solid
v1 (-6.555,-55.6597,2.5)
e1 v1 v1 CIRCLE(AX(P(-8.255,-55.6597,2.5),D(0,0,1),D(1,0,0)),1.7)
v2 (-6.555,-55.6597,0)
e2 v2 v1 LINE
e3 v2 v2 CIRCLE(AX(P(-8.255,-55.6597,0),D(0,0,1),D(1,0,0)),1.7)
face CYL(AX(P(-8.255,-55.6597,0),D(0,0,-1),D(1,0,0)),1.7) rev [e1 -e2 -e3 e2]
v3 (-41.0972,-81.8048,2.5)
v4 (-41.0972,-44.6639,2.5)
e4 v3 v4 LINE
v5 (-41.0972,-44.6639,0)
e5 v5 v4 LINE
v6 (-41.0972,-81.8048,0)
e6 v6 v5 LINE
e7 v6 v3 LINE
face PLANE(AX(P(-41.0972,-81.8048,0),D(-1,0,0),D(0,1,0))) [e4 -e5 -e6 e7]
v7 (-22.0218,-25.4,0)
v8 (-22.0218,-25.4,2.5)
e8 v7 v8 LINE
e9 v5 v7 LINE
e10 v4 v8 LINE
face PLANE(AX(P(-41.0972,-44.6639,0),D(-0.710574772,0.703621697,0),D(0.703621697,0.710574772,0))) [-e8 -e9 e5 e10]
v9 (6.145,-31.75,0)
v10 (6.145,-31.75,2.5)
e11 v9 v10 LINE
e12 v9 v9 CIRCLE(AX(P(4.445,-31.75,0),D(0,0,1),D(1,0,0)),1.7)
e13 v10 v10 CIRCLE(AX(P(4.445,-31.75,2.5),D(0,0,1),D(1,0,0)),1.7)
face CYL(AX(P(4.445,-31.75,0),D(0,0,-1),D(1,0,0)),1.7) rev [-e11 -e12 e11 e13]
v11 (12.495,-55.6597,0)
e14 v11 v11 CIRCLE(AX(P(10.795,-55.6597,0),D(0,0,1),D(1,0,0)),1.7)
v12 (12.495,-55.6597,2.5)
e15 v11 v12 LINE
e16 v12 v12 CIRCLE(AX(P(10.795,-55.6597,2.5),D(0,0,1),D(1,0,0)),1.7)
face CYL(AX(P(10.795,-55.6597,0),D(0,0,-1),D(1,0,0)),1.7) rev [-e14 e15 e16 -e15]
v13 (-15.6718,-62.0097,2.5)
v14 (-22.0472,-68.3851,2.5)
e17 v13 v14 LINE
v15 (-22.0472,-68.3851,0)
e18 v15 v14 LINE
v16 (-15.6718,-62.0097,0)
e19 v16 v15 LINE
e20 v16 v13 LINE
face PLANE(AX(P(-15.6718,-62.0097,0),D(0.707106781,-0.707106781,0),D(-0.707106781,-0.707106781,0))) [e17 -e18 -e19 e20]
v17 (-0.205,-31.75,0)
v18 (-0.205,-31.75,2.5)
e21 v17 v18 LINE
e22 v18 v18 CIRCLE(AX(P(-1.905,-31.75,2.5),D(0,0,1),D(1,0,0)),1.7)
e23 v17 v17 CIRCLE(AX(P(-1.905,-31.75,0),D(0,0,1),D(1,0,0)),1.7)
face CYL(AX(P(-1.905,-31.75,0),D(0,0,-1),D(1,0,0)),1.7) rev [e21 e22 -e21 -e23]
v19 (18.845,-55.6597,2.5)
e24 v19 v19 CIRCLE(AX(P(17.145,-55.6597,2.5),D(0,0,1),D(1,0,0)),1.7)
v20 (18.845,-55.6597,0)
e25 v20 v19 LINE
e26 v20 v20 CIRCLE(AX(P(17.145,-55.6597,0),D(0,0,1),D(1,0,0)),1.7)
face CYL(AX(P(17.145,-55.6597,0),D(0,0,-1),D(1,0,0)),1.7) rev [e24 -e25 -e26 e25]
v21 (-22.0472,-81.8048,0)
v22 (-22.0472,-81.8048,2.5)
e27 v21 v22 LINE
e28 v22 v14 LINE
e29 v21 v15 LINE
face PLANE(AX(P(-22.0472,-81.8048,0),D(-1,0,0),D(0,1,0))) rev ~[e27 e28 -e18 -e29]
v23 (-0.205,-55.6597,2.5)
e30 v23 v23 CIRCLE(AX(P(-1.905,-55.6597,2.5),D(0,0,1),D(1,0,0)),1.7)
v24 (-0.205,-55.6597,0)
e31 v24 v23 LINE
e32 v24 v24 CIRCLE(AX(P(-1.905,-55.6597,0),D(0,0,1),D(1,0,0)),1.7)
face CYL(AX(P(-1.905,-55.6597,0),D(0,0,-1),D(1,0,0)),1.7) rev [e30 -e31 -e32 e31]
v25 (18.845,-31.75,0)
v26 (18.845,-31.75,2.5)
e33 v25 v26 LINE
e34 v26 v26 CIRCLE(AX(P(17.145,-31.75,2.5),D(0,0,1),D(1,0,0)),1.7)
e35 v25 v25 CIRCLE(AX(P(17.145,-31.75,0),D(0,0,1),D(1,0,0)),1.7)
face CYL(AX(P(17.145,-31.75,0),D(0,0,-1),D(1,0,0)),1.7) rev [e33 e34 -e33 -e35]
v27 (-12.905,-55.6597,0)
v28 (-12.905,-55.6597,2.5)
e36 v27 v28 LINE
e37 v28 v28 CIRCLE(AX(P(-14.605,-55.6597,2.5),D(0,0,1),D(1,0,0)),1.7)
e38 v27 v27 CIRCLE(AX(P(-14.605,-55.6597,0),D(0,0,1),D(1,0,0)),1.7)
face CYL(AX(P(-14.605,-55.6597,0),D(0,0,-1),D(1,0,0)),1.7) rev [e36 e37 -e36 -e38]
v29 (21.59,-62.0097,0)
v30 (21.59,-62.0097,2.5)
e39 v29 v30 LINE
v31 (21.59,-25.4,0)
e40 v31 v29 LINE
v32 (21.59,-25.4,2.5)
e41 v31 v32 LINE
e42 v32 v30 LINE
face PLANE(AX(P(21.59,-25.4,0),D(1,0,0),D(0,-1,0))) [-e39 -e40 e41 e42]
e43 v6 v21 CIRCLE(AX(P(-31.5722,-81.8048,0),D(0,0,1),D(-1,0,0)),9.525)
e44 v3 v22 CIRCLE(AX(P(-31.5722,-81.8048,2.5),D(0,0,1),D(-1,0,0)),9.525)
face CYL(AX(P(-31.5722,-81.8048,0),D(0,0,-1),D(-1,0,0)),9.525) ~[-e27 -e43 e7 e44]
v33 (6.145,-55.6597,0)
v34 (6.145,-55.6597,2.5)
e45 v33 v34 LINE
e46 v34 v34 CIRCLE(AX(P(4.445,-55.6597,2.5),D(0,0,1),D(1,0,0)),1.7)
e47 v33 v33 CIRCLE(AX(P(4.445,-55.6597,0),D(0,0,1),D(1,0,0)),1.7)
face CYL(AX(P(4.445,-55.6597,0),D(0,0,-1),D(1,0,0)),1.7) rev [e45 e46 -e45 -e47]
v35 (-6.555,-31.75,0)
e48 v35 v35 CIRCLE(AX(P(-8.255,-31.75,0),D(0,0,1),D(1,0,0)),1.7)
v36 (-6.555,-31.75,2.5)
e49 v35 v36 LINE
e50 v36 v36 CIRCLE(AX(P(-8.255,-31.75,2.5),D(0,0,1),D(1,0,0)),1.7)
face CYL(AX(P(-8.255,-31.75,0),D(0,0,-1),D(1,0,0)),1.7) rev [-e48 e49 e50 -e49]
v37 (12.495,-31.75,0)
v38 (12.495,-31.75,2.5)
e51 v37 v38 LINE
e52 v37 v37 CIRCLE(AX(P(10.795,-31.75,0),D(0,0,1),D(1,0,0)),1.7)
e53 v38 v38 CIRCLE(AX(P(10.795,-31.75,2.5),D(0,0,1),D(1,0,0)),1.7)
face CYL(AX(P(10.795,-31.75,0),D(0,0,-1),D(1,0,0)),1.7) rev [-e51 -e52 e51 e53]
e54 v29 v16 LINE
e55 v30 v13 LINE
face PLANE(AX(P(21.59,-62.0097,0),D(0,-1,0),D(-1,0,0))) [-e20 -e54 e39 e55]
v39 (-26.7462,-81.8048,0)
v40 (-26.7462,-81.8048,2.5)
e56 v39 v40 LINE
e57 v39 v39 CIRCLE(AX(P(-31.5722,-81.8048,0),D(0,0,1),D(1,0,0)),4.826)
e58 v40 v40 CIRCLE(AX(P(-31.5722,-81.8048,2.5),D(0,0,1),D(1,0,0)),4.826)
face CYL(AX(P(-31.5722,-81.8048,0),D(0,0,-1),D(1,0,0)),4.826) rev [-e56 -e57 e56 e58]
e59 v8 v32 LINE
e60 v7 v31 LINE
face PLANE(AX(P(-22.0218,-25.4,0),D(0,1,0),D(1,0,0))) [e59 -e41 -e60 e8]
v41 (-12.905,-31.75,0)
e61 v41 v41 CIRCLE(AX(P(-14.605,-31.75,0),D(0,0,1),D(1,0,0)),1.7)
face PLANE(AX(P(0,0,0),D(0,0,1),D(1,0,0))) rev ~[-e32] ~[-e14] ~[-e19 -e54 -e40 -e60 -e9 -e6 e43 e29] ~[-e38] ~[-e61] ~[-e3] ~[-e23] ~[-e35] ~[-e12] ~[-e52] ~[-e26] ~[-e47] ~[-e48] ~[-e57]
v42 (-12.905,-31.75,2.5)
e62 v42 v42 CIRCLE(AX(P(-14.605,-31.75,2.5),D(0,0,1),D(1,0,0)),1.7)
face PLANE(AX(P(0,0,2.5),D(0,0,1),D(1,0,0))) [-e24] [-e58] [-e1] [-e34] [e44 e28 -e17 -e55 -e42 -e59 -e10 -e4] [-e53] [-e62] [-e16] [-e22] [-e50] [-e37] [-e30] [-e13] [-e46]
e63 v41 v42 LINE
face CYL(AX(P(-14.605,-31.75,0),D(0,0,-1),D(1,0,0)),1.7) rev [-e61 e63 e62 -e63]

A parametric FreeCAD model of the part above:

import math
import FreeCAD as App
import Part
import Sketcher
from FreeCAD import Vector
Q = App.Units.Quantity

doc = App.newDocument("Part")
body = doc.addObject("PartDesign::Body", "Body")

sketch1 = body.newObject("Sketcher::SketchObject", "Sketch")
sketch1.AttachmentSupport = (doc.getObject("XY_Plane"), [""])
sketch1.MapMode = "FlatFace"
sketch1.addGeometry([
    Part.LineSegment(Vector(-15.6718, -62.0097, 0), Vector(21.59, -62.0097, 0)),
    Part.LineSegment(Vector(21.59, -62.0097, 0), Vector(21.59, -25.4, 0)),
    Part.LineSegment(Vector(21.59, -25.4, 0), Vector(-22.0218, -25.4, 0)),
    Part.LineSegment(Vector(-22.0218, -25.4, 0), Vector(-41.0972, -44.6639, 0)),
    Part.LineSegment(Vector(-41.0972, -44.6639, 0), Vector(-41.0972, -81.8048, 0)),
    Part.ArcOfCircle(Part.Circle(Vector(-31.5722, -81.8048, 0), Vector(0, 0, 1), 9.525), math.radians(180), math.radians(360)),
    Part.LineSegment(Vector(-22.0472, -81.8048, 0), Vector(-22.0472, -68.3851, 0)),
    Part.LineSegment(Vector(-22.0472, -68.3851, 0), Vector(-15.6718, -62.0097, 0)),
    Part.Circle(Vector(-31.5722, -81.8048, 0), Vector(0, 0, 1), 4.826),
    Part.Circle(Vector(-14.605, -55.6597, 0), Vector(0, 0, 1), 1.7),
    Part.Circle(Vector(-14.605, -31.75, 0), Vector(0, 0, 1), 1.7),
    Part.Circle(Vector(-8.255, -55.6597, 0), Vector(0, 0, 1), 1.7),
    Part.Circle(Vector(-1.905, -55.6597, 0), Vector(0, 0, 1), 1.7),
    Part.Circle(Vector(4.445, -55.6597, 0), Vector(0, 0, 1), 1.7),
    Part.Circle(Vector(10.795, -55.6597, 0), Vector(0, 0, 1), 1.7),
    Part.Circle(Vector(17.145, -55.6597, 0), Vector(0, 0, 1), 1.7),
    Part.Circle(Vector(-8.255, -31.75, 0), Vector(0, 0, 1), 1.7),
    Part.Circle(Vector(-1.905, -31.75, 0), Vector(0, 0, 1), 1.7),
    Part.Circle(Vector(4.445, -31.75, 0), Vector(0, 0, 1), 1.7),
    Part.Circle(Vector(10.795, -31.75, 0), Vector(0, 0, 1), 1.7),
    Part.Circle(Vector(17.145, -31.75, 0), Vector(0, 0, 1), 1.7),
], False)
sketch1.addConstraint([
    Sketcher.Constraint("Coincident", 0, 2, 1, 1),
    Sketcher.Constraint("Coincident", 1, 2, 2, 1),
    Sketcher.Constraint("Coincident", 2, 2, 3, 1),
    Sketcher.Constraint("Coincident", 3, 2, 4, 1),
    Sketcher.Constraint("Tangent", 4, 2, 5, 1),
    Sketcher.Constraint("Tangent", 5, 2, 6, 1),
    Sketcher.Constraint("Coincident", 6, 2, 7, 1),
    Sketcher.Constraint("Coincident", 7, 2, 0, 1),
    Sketcher.Constraint("Horizontal", 0),
    Sketcher.Constraint("Vertical", 1),
    Sketcher.Constraint("Horizontal", 2),
    Sketcher.Constraint("Vertical", 4),
    Sketcher.Constraint("Vertical", 6),
    Sketcher.Constraint("Coincident", 8, 3, 5, 3),
    Sketcher.Constraint("Equal", 9, 10),
    Sketcher.Constraint("Equal", 10, 11),
    Sketcher.Constraint("Equal", 11, 12),
    Sketcher.Constraint("Equal", 12, 13),
    Sketcher.Constraint("Equal", 13, 14),
    Sketcher.Constraint("Equal", 14, 15),
    Sketcher.Constraint("Equal", 15, 16),
    Sketcher.Constraint("Equal", 16, 17),
    Sketcher.Constraint("Equal", 17, 18),
    Sketcher.Constraint("Equal", 18, 19),
    Sketcher.Constraint("Equal", 19, 20),
    Sketcher.Constraint("Horizontal", 9, 3, 11, 3),
    Sketcher.Constraint("Horizontal", 11, 3, 12, 3),
    Sketcher.Constraint("Horizontal", 12, 3, 13, 3),
    Sketcher.Constraint("Horizontal", 13, 3, 14, 3),
    Sketcher.Constraint("Horizontal", 14, 3, 15, 3),
    Sketcher.Constraint("Horizontal", 10, 3, 16, 3),
    Sketcher.Constraint("Horizontal", 16, 3, 17, 3),
    Sketcher.Constraint("Horizontal", 17, 3, 18, 3),
    Sketcher.Constraint("Horizontal", 18, 3, 19, 3),
    Sketcher.Constraint("Horizontal", 19, 3, 20, 3),
    Sketcher.Constraint("Vertical", 9, 3, 10, 3),
    Sketcher.Constraint("Vertical", 11, 3, 16, 3),
    Sketcher.Constraint("Vertical", 12, 3, 17, 3),
    Sketcher.Constraint("Vertical", 13, 3, 18, 3),
    Sketcher.Constraint("Vertical", 14, 3, 19, 3),
    Sketcher.Constraint("Vertical", 15, 3, 20, 3),
    Sketcher.Constraint("Diameter", 8, Q("0.38 in")),
    Sketcher.Constraint("DistanceY", 1, 2, -1, 1, Q("1 in")),
    Sketcher.Constraint("Angle", 7, Q("45 deg")),
    Sketcher.Constraint("Radius", 5, Q("0.375 in")),
    Sketcher.Constraint("DistanceX", 9, 3, 14, 3, Q("1 in")),
    Sketcher.Constraint("DistanceX", 11, 3, 15, 3, Q("1 in")),
    Sketcher.Constraint("DistanceX", 9, 3, 12, 3, Q("0.5 in")),
    Sketcher.Constraint("DistanceX", 11, 3, 13, 3, Q("0.5 in")),
    Sketcher.Constraint("Diameter", 9, 3.4),
    Sketcher.Constraint("DistanceX", 0, 1, 0, 2, Q("1.467 in")),
    Sketcher.Constraint("DistanceX", 2, 2, 2, 1, Q("1.717 in")),
    Sketcher.Constraint("DistanceY", 10, 3, -1, 1, Q("1.25 in")),
    Sketcher.Constraint("DistanceX", -1, 1, 0, 2, Q("0.85 in")),
    Sketcher.Constraint("DistanceX", 9, 3, 11, 3, Q("0.25 in")),
    Sketcher.Constraint("DistanceY", 0, 2, 15, 3, Q("0.25 in")),
    Sketcher.Constraint("DistanceX", 5, 3, -1, 1, Q("1.243 in")),
    Sketcher.Constraint("DistanceX", 9, 3, -1, 1, Q("0.575 in")),
    Sketcher.Constraint("DistanceY", 1, 1, 1, 2, 36.6097),
    Sketcher.Constraint("DistanceY", 4, 2, 4, 1, 37.141),
    Sketcher.Constraint("DistanceY", 6, 1, 6, 2, 13.4197),
])
pad1 = body.newObject("PartDesign::Pad", "Pad")
pad1.Profile = sketch1
pad1.Length = 2.5

doc.recompute()
